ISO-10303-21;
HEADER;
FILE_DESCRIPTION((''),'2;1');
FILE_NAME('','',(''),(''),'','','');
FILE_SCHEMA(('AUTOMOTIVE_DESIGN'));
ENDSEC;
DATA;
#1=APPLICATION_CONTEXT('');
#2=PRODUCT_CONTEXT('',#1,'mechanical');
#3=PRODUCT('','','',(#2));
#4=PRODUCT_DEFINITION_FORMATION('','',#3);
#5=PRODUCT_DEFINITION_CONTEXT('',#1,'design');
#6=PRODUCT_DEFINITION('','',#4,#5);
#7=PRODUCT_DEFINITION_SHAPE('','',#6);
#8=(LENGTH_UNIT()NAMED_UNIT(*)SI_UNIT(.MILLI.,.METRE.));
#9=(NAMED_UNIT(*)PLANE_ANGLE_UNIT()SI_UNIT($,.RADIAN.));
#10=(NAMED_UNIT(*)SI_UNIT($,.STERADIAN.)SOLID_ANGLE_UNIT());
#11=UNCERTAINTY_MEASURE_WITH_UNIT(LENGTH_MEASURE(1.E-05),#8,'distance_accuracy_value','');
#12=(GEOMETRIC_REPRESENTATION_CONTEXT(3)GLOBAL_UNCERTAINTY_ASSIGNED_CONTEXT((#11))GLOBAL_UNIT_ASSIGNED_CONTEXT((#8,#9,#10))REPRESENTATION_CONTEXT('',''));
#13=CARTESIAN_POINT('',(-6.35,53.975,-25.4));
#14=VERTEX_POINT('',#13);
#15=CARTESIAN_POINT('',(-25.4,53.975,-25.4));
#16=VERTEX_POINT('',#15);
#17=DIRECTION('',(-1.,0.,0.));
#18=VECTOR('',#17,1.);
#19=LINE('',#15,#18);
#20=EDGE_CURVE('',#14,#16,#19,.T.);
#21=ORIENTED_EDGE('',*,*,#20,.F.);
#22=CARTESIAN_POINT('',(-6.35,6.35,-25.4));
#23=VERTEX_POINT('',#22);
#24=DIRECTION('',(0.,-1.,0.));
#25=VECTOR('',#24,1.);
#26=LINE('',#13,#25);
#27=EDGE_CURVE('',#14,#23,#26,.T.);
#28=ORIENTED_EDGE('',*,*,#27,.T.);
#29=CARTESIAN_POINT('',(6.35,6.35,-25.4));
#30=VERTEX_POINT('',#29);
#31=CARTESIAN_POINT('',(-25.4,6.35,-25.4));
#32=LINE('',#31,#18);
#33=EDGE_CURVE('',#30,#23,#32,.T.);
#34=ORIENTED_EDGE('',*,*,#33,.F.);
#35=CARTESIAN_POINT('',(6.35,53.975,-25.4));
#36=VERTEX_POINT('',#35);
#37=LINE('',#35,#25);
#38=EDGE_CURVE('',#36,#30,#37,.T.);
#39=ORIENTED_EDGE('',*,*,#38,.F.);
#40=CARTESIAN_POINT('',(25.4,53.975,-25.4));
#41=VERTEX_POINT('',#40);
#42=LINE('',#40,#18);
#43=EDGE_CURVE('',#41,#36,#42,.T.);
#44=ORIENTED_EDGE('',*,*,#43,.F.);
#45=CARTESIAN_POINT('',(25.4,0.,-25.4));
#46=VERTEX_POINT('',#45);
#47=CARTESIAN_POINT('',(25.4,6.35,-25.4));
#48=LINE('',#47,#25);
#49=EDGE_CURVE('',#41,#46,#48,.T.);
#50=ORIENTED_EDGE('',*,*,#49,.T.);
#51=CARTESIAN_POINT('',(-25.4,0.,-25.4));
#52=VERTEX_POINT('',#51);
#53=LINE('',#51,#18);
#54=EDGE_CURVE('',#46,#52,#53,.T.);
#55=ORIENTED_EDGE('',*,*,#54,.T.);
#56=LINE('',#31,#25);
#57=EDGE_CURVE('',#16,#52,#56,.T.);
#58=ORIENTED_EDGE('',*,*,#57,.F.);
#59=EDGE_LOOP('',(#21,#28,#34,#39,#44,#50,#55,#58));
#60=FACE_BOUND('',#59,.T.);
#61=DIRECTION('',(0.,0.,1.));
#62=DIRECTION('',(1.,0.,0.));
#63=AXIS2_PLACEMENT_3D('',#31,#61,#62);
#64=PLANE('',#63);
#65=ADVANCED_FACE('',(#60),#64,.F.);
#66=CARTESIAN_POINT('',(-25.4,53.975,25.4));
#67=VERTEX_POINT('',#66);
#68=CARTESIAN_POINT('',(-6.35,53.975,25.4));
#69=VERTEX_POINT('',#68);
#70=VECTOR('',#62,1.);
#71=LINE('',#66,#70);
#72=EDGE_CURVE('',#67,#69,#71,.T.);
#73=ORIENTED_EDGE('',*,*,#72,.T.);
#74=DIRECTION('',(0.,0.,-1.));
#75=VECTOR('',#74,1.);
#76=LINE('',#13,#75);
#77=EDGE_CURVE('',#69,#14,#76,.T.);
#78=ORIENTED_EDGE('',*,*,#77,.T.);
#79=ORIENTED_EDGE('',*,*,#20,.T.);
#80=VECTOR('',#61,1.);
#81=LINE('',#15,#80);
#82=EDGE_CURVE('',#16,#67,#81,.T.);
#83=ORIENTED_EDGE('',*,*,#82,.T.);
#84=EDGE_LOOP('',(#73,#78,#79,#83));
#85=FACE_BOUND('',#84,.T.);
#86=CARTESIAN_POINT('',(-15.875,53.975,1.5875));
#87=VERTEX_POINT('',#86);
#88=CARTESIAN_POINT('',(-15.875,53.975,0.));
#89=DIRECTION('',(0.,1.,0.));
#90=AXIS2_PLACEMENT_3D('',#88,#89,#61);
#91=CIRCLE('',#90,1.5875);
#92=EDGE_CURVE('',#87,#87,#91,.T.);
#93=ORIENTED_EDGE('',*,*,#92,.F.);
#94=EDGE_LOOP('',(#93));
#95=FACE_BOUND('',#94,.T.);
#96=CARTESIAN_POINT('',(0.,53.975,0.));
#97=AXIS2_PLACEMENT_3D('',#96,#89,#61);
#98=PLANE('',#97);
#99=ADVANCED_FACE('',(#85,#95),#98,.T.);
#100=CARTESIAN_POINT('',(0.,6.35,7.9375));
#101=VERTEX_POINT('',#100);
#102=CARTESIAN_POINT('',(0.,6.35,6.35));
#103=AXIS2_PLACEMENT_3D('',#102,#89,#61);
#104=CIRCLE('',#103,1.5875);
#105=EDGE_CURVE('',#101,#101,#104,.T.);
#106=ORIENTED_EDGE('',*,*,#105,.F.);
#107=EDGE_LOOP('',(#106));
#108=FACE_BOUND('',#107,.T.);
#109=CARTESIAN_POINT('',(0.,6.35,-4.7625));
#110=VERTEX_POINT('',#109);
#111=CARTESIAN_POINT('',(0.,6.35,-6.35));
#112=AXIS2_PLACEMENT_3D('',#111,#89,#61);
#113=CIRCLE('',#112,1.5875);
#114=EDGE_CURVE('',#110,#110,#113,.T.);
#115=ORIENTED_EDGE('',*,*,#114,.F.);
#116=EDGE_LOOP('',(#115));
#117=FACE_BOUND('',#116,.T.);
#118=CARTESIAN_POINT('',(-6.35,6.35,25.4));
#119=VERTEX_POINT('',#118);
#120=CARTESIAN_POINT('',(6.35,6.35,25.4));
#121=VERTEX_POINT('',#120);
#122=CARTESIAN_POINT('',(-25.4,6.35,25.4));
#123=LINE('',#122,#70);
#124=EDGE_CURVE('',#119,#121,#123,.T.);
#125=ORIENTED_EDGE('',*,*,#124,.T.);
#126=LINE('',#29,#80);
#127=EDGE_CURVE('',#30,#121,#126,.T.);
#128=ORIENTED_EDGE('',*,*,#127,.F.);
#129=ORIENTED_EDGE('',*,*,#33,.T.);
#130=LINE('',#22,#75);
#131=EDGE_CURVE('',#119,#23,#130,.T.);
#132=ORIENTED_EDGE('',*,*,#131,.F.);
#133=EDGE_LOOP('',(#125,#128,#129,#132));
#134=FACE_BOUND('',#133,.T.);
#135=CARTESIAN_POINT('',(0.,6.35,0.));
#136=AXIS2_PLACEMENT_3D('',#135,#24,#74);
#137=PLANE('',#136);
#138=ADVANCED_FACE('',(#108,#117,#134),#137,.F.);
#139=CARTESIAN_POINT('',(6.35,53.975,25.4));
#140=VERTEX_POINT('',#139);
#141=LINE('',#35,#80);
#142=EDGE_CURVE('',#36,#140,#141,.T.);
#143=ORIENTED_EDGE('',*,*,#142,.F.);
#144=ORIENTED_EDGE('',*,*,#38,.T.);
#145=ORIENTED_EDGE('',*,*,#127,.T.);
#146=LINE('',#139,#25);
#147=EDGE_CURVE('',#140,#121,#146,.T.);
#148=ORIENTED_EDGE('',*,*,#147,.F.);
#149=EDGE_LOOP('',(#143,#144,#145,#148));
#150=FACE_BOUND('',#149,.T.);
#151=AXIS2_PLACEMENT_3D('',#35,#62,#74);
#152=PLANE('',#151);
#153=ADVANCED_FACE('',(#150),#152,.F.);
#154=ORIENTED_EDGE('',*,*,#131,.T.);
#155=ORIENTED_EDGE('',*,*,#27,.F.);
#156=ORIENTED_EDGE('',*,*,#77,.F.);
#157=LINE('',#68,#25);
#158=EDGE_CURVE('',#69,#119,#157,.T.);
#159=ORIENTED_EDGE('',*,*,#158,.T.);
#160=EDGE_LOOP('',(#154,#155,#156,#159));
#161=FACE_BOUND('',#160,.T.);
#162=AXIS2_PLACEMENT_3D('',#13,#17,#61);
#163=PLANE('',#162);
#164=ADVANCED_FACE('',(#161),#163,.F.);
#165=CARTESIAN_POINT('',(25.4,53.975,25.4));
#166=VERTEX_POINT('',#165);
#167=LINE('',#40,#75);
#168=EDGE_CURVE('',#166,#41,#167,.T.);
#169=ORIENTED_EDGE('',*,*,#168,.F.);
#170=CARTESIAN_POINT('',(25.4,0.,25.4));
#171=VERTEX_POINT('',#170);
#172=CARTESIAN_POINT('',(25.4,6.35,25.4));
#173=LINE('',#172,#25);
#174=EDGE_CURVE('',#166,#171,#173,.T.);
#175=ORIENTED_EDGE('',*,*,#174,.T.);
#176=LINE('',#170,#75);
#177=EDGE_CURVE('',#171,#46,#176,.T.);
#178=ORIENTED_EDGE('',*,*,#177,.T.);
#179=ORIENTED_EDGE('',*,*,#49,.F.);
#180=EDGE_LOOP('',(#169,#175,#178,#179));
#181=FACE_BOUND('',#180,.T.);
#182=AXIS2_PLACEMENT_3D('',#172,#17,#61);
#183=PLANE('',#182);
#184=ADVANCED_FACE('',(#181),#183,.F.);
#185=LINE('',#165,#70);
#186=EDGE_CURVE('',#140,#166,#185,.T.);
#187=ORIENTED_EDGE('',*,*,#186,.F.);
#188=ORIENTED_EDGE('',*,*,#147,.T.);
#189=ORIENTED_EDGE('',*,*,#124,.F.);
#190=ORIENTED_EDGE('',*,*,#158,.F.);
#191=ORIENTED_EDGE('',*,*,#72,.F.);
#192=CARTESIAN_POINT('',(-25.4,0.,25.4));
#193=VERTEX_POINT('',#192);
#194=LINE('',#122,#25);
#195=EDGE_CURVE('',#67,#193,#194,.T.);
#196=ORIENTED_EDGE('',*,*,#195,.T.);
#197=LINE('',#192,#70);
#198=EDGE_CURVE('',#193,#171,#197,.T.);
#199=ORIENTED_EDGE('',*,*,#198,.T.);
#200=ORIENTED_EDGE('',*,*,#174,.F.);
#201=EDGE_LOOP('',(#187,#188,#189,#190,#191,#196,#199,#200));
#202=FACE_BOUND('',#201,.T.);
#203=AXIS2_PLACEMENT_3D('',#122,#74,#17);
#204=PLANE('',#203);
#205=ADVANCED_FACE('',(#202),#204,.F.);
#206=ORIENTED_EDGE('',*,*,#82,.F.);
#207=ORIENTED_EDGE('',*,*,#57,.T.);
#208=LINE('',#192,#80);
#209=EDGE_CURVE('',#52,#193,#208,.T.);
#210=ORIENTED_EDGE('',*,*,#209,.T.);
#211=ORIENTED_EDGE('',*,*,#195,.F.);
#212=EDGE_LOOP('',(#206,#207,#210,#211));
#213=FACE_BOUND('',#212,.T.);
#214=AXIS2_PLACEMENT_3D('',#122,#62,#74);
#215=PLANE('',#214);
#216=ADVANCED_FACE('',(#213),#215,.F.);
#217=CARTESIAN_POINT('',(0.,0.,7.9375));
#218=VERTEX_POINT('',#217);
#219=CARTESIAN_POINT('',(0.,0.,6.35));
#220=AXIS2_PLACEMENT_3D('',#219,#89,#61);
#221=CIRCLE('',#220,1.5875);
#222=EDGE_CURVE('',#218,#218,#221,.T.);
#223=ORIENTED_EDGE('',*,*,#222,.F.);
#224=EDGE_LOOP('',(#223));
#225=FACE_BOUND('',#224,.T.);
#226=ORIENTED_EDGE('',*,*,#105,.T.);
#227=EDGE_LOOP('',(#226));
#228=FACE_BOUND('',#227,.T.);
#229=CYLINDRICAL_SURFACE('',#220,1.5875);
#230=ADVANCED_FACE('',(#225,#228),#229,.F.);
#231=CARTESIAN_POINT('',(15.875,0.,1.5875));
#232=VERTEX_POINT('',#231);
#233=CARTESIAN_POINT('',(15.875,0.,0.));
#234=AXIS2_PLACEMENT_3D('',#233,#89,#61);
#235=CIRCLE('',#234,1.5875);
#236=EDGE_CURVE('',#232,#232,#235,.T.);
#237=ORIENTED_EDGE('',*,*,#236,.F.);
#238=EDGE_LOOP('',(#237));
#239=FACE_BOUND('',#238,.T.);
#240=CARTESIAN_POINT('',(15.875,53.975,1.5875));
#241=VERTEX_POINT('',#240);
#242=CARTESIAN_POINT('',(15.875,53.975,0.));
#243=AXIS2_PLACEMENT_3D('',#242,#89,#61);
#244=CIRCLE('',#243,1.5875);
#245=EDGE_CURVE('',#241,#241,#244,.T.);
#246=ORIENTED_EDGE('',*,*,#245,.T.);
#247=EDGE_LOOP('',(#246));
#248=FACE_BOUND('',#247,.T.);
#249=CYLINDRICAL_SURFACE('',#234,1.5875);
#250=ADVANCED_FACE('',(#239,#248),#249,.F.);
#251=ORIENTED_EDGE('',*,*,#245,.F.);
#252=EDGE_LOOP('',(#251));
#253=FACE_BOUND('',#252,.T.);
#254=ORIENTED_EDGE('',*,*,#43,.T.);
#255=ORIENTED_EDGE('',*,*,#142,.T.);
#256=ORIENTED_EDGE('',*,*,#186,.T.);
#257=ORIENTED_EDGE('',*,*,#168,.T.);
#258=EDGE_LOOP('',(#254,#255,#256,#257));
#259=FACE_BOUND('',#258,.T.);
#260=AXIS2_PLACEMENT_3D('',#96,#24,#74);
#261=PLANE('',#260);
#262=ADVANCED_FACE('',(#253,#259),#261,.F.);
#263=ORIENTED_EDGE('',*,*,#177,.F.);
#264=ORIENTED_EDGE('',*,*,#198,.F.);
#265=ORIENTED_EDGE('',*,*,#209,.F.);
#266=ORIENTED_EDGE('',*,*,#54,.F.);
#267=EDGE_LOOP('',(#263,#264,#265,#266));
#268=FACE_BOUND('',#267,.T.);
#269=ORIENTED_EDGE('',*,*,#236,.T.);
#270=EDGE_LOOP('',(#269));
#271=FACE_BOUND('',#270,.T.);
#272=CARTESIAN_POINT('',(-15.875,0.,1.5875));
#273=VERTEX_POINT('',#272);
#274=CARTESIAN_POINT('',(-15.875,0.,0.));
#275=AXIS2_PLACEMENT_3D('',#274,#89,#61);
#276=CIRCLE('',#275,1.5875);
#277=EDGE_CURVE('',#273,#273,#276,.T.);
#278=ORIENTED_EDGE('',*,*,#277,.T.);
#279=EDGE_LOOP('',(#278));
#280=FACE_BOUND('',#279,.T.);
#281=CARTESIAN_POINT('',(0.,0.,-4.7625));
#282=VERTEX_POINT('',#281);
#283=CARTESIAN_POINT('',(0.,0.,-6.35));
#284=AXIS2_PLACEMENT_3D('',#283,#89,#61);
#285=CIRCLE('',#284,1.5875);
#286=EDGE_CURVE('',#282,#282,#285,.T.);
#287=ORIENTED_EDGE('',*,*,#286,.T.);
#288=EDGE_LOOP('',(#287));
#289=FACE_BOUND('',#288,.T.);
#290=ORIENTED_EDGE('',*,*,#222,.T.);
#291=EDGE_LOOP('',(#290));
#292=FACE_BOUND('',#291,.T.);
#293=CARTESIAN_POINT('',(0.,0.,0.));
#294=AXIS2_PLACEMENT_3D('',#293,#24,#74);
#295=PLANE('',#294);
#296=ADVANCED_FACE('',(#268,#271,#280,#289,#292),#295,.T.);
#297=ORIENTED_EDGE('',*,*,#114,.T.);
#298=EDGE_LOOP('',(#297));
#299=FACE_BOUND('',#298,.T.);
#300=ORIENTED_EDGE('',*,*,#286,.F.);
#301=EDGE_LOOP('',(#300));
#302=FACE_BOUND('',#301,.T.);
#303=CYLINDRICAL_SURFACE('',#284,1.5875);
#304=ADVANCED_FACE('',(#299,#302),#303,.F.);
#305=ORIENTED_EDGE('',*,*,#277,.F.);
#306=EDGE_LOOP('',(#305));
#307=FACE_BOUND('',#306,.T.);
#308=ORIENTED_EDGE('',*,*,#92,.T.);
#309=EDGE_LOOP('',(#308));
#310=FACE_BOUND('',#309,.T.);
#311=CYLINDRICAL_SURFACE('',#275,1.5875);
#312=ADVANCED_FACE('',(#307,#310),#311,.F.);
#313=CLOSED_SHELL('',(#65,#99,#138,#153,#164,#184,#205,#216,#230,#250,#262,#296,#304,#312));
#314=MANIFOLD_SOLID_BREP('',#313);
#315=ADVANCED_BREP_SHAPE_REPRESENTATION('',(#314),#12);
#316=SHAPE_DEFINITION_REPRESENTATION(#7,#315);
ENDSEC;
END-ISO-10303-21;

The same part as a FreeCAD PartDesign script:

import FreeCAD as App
import Part
import Sketcher
from FreeCAD import Vector
Q = App.Units.Quantity

doc = App.newDocument("Part")
body = doc.addObject("PartDesign::Body", "Body")

# Sketch on XZ plane
sketch1 = body.newObject("Sketcher::SketchObject", "Sketch")
sketch1.AttachmentSupport = (doc.getObject("XZ_Plane"), [""])
sketch1.MapMode = "FlatFace"
sketch1.addGeometry([
    Part.LineSegment(Vector(-25.4, -25.4, 0), Vector(-25.4, 25.4, 0)),
    Part.LineSegment(Vector(-25.4, 25.4, 0), Vector(25.4, 25.4, 0)),
    Part.LineSegment(Vector(25.4, 25.4, 0), Vector(25.4, -25.4, 0)),
    Part.LineSegment(Vector(25.4, -25.4, 0), Vector(-25.4, -25.4, 0)),
], False)
sketch1.addConstraint([
    Sketcher.Constraint("Coincident", 0, 2, 1, 1),
    Sketcher.Constraint("Coincident", 1, 2, 2, 1),
    Sketcher.Constraint("Coincident", 2, 2, 3, 1),
    Sketcher.Constraint("Coincident", 3, 2, 0, 1),
    Sketcher.Constraint("Vertical", 0),
    Sketcher.Constraint("Horizontal", 1),
    Sketcher.Constraint("Vertical", 2),
    Sketcher.Constraint("Horizontal", 3),
    Sketcher.Constraint("Symmetric", 0, 2, 2, 2, -1, 1),
    Sketcher.Constraint("Equal", 3, 0),
    Sketcher.Constraint("DistanceX", 1, 1, 1, 2, Q("2 in")),
])
pad1 = body.newObject("PartDesign::Pad", "Pad")
pad1.Profile = sketch1
pad1.Length = Q("0.25 in")
pad1.Reversed = True

# Sketch on XZ plane
sketch2 = body.newObject("Sketcher::SketchObject", "Sketch001")
sketch2.AttachmentSupport = (doc.getObject("XZ_Plane"), [""])
sketch2.MapMode = "FlatFace"
sketch2.AttachmentOffset = App.Placement(Vector(0, 0, -0.25 * 25.4), App.Rotation())
sketch2.addGeometry([
    Part.LineSegment(Vector(-25.4, -25.4, 0), Vector(-25.4, 25.4, 0)),  # 0
    Part.LineSegment(Vector(-25.4, 25.4, 0), Vector(-6.35, 25.4, 0)),  # 1
    Part.LineSegment(Vector(-6.35, 25.4, 0), Vector(-6.35, -25.4, 0)),  # 2
    Part.LineSegment(Vector(-6.35, -25.4, 0), Vector(-25.4, -25.4, 0)),  # 3
    Part.LineSegment(Vector(6.35, -25.4, 0), Vector(6.35, 25.4, 0)),  # 4
    Part.LineSegment(Vector(6.35, 25.4, 0), Vector(25.4, 25.4, 0)),  # 5
    Part.LineSegment(Vector(25.4, 25.4, 0), Vector(25.4, -25.4, 0)),  # 6
    Part.LineSegment(Vector(25.4, -25.4, 0), Vector(6.35, -25.4, 0)),  # 7
], False)
sketch2.addConstraint([
    Sketcher.Constraint("Coincident", 0, 2, 1, 1),
    Sketcher.Constraint("Coincident", 1, 2, 2, 1),
    Sketcher.Constraint("Coincident", 2, 2, 3, 1),
    Sketcher.Constraint("Coincident", 3, 2, 0, 1),
    Sketcher.Constraint("Coincident", 4, 2, 5, 1),
    Sketcher.Constraint("Coincident", 5, 2, 6, 1),
    Sketcher.Constraint("Coincident", 6, 2, 7, 1),
    Sketcher.Constraint("Coincident", 7, 2, 4, 1),
    Sketcher.Constraint("Vertical", 0),
    Sketcher.Constraint("Horizontal", 1),
    Sketcher.Constraint("Vertical", 2),
    Sketcher.Constraint("Horizontal", 3),
    Sketcher.Constraint("Vertical", 4),
    Sketcher.Constraint("Horizontal", 5),
    Sketcher.Constraint("Vertical", 6),
    Sketcher.Constraint("Horizontal", 7),
    Sketcher.Constraint("Symmetric", 2, 2, 4, 2, -1, 1),
    Sketcher.Constraint("Symmetric", 0, 2, 6, 2, -1, 1),
    Sketcher.Constraint("Horizontal", 1, 2, 4, 2),
    Sketcher.Constraint("DistanceY", 0, 1, 0, 2, Q("2 in")),
    Sketcher.Constraint("DistanceX", 0, 2, -1, 1, Q("1 in")),
    Sketcher.Constraint("DistanceX", 1, 1, 1, 2, Q("0.75 in")),
])
pad2 = body.newObject("PartDesign::Pad", "Pad001")
pad2.Profile = sketch2
pad2.Length = Q("1.875 in")
pad2.Reversed = True

# Sketch on XZ plane
sketch3 = body.newObject("Sketcher::SketchObject", "Sketch002")
sketch3.AttachmentSupport = (doc.getObject("XZ_Plane"), [""])
sketch3.MapMode = "FlatFace"
sketch3.AttachmentOffset = App.Placement(Vector(0, 0, -0.25 * 25.4), App.Rotation())
sketch3.addGeometry([
    Part.Circle(Vector(0, -6.35, 0), Vector(0, 0, 1), 1.5875),
    Part.Circle(Vector(0, 6.35, 0), Vector(0, 0, 1), 1.5875),
], False)
sketch3.addConstraint([
    Sketcher.Constraint("Equal", 0, 1),
    Sketcher.Constraint("Symmetric", 0, 3, 1, 3, -1, 1),
    Sketcher.Constraint("PointOnObject", 0, 3, -2),
    Sketcher.Constraint("Diameter", 0, Q("0.125 in")),
    Sketcher.Constraint("DistanceY", 0, 3, 1, 3, Q("0.5 in")),
])
pocket1 = body.newObject("PartDesign::Pocket", "Pocket")
pocket1.Profile = sketch3
pocket1.Type = "ThroughAll"
pocket1.Reversed = True

# Sketch on XZ plane
sketch4 = body.newObject("Sketcher::SketchObject", "Sketch003")
sketch4.AttachmentSupport = (doc.getObject("XZ_Plane"), [""])
sketch4.MapMode = "FlatFace"
sketch4.AttachmentOffset = App.Placement(Vector(0, 0, -2.125 * 25.4), App.Rotation())
sketch4.addGeometry([
    Part.Circle(Vector(-15.875, 0, 0), Vector(0, 0, 1), 1.5875),
    Part.Circle(Vector(15.875, 0, 0), Vector(0, 0, 1), 1.5875),
], False)
sketch4.addConstraint([
    Sketcher.Constraint("Equal", 0, 1),
    Sketcher.Constraint("Symmetric", 0, 3, 1, 3, -1, 1),
    Sketcher.Constraint("PointOnObject", 0, 3, -1),
    Sketcher.Constraint("Diameter", 0, Q("0.125 in")),
    Sketcher.Constraint("DistanceX", 0, 3, 1, 3, Q("1.25 in")),
])
pocket2 = body.newObject("PartDesign::Pocket", "Pocket001")
pocket2.Profile = sketch4
pocket2.Type = "ThroughAll"
pocket2.Reversed = True

doc.recompute()
